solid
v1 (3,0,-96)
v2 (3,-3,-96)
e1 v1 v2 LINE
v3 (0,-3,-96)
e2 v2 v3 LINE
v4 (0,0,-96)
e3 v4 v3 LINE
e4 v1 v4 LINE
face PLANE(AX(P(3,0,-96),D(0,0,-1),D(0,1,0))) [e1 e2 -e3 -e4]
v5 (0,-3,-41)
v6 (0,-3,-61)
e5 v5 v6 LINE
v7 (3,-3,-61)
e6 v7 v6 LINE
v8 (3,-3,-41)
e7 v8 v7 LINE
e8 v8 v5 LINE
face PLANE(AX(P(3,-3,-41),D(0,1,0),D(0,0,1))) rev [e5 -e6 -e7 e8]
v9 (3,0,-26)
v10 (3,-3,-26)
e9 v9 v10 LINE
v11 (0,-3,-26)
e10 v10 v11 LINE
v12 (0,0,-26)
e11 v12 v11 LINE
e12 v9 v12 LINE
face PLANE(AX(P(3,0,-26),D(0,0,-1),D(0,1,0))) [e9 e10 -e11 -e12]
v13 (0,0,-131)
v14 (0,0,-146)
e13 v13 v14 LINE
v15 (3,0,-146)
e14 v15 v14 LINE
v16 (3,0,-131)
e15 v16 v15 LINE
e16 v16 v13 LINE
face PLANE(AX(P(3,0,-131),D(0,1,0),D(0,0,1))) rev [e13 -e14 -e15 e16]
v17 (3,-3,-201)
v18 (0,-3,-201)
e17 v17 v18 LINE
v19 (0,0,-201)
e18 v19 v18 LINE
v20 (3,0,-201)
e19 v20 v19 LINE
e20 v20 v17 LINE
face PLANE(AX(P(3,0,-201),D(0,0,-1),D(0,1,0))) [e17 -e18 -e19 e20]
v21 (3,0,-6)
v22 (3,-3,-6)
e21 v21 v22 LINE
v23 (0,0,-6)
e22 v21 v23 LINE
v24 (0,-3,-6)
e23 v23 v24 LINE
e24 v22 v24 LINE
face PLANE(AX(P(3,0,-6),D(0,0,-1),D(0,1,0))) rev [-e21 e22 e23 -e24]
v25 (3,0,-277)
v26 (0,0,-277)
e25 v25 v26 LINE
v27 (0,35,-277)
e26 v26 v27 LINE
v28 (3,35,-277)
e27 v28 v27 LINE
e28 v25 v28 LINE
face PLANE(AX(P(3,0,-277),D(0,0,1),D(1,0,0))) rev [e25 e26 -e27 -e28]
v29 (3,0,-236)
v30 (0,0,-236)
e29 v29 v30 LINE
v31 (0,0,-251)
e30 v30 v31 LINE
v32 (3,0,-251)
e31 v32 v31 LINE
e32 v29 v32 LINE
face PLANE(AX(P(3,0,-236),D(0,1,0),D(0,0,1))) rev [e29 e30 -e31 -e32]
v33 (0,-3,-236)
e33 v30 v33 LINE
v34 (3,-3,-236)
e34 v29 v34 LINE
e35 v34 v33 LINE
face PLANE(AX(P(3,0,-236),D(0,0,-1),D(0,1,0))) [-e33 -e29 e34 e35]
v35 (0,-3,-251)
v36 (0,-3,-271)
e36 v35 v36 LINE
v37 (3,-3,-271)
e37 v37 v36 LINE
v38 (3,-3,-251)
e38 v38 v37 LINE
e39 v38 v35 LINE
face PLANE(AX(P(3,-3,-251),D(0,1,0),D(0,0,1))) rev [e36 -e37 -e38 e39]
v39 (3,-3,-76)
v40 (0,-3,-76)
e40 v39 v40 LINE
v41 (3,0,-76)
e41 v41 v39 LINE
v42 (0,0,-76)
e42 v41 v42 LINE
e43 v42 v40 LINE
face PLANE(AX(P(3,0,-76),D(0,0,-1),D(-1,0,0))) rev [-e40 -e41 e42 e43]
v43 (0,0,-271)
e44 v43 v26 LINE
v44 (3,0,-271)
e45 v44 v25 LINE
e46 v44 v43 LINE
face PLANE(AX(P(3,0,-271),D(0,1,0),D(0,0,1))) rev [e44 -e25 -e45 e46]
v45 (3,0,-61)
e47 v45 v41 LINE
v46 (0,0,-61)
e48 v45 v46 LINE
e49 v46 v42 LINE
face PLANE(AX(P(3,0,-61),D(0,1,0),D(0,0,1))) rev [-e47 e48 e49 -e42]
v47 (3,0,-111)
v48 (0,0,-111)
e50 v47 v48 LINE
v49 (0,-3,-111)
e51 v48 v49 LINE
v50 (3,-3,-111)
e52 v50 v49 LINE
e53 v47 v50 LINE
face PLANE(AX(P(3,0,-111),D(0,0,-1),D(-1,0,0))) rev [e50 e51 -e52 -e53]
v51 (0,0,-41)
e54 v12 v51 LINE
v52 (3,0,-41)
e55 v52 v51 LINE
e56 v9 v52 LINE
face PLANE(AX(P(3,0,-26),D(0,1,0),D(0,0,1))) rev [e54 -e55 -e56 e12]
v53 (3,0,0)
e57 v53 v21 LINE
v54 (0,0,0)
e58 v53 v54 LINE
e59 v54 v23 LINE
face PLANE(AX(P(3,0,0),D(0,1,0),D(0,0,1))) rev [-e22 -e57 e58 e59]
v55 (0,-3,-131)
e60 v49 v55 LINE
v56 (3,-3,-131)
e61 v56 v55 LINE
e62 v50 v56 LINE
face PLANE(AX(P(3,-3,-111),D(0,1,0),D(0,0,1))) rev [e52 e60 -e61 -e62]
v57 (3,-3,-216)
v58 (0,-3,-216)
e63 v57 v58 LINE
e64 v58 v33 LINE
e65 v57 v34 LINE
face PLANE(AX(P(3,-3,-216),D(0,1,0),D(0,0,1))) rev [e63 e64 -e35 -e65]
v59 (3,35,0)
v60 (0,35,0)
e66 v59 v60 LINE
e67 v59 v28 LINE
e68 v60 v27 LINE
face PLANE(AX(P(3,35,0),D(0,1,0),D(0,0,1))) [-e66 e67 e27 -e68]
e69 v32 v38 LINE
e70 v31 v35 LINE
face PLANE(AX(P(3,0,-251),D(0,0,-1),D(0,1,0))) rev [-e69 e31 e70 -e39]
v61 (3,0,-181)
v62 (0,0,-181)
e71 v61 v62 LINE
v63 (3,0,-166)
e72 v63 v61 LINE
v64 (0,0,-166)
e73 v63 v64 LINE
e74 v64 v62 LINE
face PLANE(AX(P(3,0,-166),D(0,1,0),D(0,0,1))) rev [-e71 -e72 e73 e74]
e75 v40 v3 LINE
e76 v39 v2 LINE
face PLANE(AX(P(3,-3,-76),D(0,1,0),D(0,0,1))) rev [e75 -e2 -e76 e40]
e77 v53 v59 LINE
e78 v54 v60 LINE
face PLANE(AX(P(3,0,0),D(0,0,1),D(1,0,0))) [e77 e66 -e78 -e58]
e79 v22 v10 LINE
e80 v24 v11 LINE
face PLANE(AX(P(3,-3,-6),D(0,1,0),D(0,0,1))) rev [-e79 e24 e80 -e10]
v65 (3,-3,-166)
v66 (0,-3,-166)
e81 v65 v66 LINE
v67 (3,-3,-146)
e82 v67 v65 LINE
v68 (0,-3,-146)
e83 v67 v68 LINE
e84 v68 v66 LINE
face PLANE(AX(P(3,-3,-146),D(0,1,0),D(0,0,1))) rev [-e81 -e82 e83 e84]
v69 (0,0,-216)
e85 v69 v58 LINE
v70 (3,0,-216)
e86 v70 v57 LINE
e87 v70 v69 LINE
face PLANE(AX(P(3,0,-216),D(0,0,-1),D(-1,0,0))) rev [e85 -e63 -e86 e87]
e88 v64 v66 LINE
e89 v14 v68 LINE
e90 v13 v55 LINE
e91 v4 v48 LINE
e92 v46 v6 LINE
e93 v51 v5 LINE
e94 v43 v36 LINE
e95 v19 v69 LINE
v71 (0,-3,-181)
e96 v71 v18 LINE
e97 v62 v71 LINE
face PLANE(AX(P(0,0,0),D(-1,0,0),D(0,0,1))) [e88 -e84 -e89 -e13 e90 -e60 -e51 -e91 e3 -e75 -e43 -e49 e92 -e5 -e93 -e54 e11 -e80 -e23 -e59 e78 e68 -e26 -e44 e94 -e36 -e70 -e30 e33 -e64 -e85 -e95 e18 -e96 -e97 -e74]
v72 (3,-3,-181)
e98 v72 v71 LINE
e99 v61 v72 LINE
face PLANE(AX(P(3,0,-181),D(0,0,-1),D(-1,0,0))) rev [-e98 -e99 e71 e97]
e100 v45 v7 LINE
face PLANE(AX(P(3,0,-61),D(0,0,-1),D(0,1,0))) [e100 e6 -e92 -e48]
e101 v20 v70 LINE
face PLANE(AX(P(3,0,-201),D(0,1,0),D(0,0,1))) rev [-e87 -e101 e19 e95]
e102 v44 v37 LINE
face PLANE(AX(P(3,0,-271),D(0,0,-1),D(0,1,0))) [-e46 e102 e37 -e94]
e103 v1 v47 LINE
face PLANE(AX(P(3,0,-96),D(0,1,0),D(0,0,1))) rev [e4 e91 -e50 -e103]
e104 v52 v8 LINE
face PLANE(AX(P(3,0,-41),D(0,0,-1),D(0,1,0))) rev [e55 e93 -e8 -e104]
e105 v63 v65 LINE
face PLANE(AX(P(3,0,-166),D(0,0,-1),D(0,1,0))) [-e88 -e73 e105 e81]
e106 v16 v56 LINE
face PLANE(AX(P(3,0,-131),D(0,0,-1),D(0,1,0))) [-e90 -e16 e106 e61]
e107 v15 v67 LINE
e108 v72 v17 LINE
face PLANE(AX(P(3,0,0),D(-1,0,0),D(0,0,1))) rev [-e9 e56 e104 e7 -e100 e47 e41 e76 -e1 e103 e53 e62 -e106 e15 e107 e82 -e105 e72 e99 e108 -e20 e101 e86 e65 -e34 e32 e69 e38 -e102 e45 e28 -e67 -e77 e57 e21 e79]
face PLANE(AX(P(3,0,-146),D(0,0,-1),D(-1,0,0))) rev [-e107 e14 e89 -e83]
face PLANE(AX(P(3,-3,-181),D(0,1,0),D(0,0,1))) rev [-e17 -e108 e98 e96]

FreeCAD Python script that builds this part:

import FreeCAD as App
import Part
import Sketcher
from FreeCAD import Vector
Q = App.Units.Quantity


def add_polygon(sketch, points):
    """Adds a closed chain of lines whose ends are joined by coincident constraints."""
    first, n = sketch.GeometryCount, len(points)
    for a, b in zip(points, points[1:] + points[:1]):
        sketch.addGeometry(Part.LineSegment(App.Vector(*a, 0), App.Vector(*b, 0)), False)
    for i in range(n):
        sketch.addConstraint(Sketcher.Constraint("Coincident", first + i, 2, first + (i + 1) % n, 1))

doc = App.newDocument("Part")
params = doc.addObject("Spreadsheet::Sheet", "Params")
for row, (alias, value) in enumerate([
    ("sketch1_width", "3 mm"),
    ("sketch1_width2", "35 mm"),
    ("sketch1_height", "15 mm"),
    ("sketch1_height2", "20 mm"),
    ("sketch1_height3", "6 mm"),
    ("pad1_length", "3 mm"),
], start=1):
    params.set(f"A{row}", alias)
    params.set(f"B{row}", "=" + value)
    params.setAlias(f"B{row}", alias)

body = doc.addObject("PartDesign::Body", "Body")

# Sketch on YZ plane
sketch1 = body.newObject("Sketcher::SketchObject", "Sketch")
sketch1.AttachmentSupport = (doc.getObject("YZ_Plane"), [""])
sketch1.MapMode = "FlatFace"
add_polygon(sketch1, [(0, -26), (0, -41), (-3, -41), (-3, -61), (0, -61), (0, -76), (-3, -76), (-3, -96), (0, -96), (0, -111), (-3, -111), (-3, -131), (0, -131), (0, -146), (-3, -146), (-3, -166), (0, -166), (0, -181), (-3, -181), (-3, -201), (0, -201), (0, -216), (-3, -216), (-3, -236), (0, -236), (0, -251), (-3, -251), (-3, -271), (0, -271), (0, -277), (35, -277), (35, 0), (0, 0), (0, -6), (-3, -6), (-3, -26)])  # lines 0-35
sketch1.addConstraint([
    Sketcher.Constraint("Vertical", 0),
    Sketcher.Constraint("Horizontal", 1),
    Sketcher.Constraint("Vertical", 2),
    Sketcher.Constraint("Horizontal", 3),
    Sketcher.Constraint("Vertical", 4),
    Sketcher.Constraint("Horizontal", 5),
    Sketcher.Constraint("Vertical", 6),
    Sketcher.Constraint("Horizontal", 7),
    Sketcher.Constraint("Vertical", 8),
    Sketcher.Constraint("Horizontal", 9),
    Sketcher.Constraint("Vertical", 10),
    Sketcher.Constraint("Horizontal", 11),
    Sketcher.Constraint("Vertical", 12),
    Sketcher.Constraint("Horizontal", 13),
    Sketcher.Constraint("Vertical", 14),
    Sketcher.Constraint("Horizontal", 15),
    Sketcher.Constraint("Vertical", 16),
    Sketcher.Constraint("Horizontal", 17),
    Sketcher.Constraint("Vertical", 18),
    Sketcher.Constraint("Horizontal", 19),
    Sketcher.Constraint("Vertical", 20),
    Sketcher.Constraint("Horizontal", 21),
    Sketcher.Constraint("Vertical", 22),
    Sketcher.Constraint("Horizontal", 23),
    Sketcher.Constraint("Vertical", 24),
    Sketcher.Constraint("Horizontal", 25),
    Sketcher.Constraint("Vertical", 26),
    Sketcher.Constraint("Horizontal", 27),
    Sketcher.Constraint("Vertical", 28),
    Sketcher.Constraint("Horizontal", 29),
    Sketcher.Constraint("Vertical", 30),
    Sketcher.Constraint("Horizontal", 31),
    Sketcher.Constraint("Vertical", 32),
    Sketcher.Constraint("Horizontal", 33),
    Sketcher.Constraint("Vertical", 34),
    Sketcher.Constraint("Horizontal", 35),
    Sketcher.Constraint("Coincident", 31, 2, -1, 1),
    Sketcher.Constraint("PointOnObject", 0, 2, -2),
    Sketcher.Constraint("PointOnObject", 3, 2, -2),
    Sketcher.Constraint("PointOnObject", 7, 2, -2),
    Sketcher.Constraint("PointOnObject", 11, 2, -2),
    Sketcher.Constraint("PointOnObject", 15, 2, -2),
    Sketcher.Constraint("PointOnObject", 19, 2, -2),
    Sketcher.Constraint("PointOnObject", 23, 2, -2),
    Sketcher.Constraint("PointOnObject", 27, 2, -2),
    Sketcher.Constraint("Vertical", 2, 2, 5, 2),
    Sketcher.Constraint("Vertical", 6, 2, 9, 2),
    Sketcher.Constraint("Vertical", 10, 2, 13, 2),
    Sketcher.Constraint("Vertical", 14, 2, 17, 2),
    Sketcher.Constraint("Vertical", 18, 2, 21, 2),
    Sketcher.Constraint("Vertical", 22, 2, 25, 2),
    Sketcher.Constraint("Vertical", 26, 2, 33, 2),
    Sketcher.Constraint("Equal", 0, 4),
    Sketcher.Constraint("Equal", 2, 6),
    Sketcher.Constraint("Equal", 4, 8),
    Sketcher.Constraint("Equal", 6, 10),
    Sketcher.Constraint("Equal", 8, 12),
    Sketcher.Constraint("Equal", 10, 14),
    Sketcher.Constraint("Equal", 12, 16),
    Sketcher.Constraint("Equal", 14, 18),
    Sketcher.Constraint("Equal", 16, 20),
    Sketcher.Constraint("Equal", 18, 22),
    Sketcher.Constraint("Equal", 20, 24),
    Sketcher.Constraint("Equal", 22, 26),
    Sketcher.Constraint("Equal", 28, 32),
    Sketcher.Constraint("Equal", 26, 34),
    Sketcher.Constraint("DistanceX", 1, 2, 1, 1, Q("3 mm")),
    Sketcher.Constraint("DistanceX", 29, 1, 29, 2, Q("35 mm")),
    Sketcher.Constraint("DistanceY", 0, 2, 0, 1, Q("15 mm")),
    Sketcher.Constraint("DistanceY", 2, 2, 2, 1, Q("20 mm")),
    Sketcher.Constraint("DistanceY", 28, 2, 28, 1, Q("6 mm")),
])
sketch1.setExpression("Constraints[102]", "Params.sketch1_width")
sketch1.setExpression("Constraints[103]", "Params.sketch1_width2")
sketch1.setExpression("Constraints[104]", "Params.sketch1_height")
sketch1.setExpression("Constraints[105]", "Params.sketch1_height2")
sketch1.setExpression("Constraints[106]", "Params.sketch1_height3")
pad1 = body.newObject("PartDesign::Pad", "Pad")
pad1.Profile = sketch1
pad1.setExpression("Length", "Params.pad1_length")

doc.recompute()
